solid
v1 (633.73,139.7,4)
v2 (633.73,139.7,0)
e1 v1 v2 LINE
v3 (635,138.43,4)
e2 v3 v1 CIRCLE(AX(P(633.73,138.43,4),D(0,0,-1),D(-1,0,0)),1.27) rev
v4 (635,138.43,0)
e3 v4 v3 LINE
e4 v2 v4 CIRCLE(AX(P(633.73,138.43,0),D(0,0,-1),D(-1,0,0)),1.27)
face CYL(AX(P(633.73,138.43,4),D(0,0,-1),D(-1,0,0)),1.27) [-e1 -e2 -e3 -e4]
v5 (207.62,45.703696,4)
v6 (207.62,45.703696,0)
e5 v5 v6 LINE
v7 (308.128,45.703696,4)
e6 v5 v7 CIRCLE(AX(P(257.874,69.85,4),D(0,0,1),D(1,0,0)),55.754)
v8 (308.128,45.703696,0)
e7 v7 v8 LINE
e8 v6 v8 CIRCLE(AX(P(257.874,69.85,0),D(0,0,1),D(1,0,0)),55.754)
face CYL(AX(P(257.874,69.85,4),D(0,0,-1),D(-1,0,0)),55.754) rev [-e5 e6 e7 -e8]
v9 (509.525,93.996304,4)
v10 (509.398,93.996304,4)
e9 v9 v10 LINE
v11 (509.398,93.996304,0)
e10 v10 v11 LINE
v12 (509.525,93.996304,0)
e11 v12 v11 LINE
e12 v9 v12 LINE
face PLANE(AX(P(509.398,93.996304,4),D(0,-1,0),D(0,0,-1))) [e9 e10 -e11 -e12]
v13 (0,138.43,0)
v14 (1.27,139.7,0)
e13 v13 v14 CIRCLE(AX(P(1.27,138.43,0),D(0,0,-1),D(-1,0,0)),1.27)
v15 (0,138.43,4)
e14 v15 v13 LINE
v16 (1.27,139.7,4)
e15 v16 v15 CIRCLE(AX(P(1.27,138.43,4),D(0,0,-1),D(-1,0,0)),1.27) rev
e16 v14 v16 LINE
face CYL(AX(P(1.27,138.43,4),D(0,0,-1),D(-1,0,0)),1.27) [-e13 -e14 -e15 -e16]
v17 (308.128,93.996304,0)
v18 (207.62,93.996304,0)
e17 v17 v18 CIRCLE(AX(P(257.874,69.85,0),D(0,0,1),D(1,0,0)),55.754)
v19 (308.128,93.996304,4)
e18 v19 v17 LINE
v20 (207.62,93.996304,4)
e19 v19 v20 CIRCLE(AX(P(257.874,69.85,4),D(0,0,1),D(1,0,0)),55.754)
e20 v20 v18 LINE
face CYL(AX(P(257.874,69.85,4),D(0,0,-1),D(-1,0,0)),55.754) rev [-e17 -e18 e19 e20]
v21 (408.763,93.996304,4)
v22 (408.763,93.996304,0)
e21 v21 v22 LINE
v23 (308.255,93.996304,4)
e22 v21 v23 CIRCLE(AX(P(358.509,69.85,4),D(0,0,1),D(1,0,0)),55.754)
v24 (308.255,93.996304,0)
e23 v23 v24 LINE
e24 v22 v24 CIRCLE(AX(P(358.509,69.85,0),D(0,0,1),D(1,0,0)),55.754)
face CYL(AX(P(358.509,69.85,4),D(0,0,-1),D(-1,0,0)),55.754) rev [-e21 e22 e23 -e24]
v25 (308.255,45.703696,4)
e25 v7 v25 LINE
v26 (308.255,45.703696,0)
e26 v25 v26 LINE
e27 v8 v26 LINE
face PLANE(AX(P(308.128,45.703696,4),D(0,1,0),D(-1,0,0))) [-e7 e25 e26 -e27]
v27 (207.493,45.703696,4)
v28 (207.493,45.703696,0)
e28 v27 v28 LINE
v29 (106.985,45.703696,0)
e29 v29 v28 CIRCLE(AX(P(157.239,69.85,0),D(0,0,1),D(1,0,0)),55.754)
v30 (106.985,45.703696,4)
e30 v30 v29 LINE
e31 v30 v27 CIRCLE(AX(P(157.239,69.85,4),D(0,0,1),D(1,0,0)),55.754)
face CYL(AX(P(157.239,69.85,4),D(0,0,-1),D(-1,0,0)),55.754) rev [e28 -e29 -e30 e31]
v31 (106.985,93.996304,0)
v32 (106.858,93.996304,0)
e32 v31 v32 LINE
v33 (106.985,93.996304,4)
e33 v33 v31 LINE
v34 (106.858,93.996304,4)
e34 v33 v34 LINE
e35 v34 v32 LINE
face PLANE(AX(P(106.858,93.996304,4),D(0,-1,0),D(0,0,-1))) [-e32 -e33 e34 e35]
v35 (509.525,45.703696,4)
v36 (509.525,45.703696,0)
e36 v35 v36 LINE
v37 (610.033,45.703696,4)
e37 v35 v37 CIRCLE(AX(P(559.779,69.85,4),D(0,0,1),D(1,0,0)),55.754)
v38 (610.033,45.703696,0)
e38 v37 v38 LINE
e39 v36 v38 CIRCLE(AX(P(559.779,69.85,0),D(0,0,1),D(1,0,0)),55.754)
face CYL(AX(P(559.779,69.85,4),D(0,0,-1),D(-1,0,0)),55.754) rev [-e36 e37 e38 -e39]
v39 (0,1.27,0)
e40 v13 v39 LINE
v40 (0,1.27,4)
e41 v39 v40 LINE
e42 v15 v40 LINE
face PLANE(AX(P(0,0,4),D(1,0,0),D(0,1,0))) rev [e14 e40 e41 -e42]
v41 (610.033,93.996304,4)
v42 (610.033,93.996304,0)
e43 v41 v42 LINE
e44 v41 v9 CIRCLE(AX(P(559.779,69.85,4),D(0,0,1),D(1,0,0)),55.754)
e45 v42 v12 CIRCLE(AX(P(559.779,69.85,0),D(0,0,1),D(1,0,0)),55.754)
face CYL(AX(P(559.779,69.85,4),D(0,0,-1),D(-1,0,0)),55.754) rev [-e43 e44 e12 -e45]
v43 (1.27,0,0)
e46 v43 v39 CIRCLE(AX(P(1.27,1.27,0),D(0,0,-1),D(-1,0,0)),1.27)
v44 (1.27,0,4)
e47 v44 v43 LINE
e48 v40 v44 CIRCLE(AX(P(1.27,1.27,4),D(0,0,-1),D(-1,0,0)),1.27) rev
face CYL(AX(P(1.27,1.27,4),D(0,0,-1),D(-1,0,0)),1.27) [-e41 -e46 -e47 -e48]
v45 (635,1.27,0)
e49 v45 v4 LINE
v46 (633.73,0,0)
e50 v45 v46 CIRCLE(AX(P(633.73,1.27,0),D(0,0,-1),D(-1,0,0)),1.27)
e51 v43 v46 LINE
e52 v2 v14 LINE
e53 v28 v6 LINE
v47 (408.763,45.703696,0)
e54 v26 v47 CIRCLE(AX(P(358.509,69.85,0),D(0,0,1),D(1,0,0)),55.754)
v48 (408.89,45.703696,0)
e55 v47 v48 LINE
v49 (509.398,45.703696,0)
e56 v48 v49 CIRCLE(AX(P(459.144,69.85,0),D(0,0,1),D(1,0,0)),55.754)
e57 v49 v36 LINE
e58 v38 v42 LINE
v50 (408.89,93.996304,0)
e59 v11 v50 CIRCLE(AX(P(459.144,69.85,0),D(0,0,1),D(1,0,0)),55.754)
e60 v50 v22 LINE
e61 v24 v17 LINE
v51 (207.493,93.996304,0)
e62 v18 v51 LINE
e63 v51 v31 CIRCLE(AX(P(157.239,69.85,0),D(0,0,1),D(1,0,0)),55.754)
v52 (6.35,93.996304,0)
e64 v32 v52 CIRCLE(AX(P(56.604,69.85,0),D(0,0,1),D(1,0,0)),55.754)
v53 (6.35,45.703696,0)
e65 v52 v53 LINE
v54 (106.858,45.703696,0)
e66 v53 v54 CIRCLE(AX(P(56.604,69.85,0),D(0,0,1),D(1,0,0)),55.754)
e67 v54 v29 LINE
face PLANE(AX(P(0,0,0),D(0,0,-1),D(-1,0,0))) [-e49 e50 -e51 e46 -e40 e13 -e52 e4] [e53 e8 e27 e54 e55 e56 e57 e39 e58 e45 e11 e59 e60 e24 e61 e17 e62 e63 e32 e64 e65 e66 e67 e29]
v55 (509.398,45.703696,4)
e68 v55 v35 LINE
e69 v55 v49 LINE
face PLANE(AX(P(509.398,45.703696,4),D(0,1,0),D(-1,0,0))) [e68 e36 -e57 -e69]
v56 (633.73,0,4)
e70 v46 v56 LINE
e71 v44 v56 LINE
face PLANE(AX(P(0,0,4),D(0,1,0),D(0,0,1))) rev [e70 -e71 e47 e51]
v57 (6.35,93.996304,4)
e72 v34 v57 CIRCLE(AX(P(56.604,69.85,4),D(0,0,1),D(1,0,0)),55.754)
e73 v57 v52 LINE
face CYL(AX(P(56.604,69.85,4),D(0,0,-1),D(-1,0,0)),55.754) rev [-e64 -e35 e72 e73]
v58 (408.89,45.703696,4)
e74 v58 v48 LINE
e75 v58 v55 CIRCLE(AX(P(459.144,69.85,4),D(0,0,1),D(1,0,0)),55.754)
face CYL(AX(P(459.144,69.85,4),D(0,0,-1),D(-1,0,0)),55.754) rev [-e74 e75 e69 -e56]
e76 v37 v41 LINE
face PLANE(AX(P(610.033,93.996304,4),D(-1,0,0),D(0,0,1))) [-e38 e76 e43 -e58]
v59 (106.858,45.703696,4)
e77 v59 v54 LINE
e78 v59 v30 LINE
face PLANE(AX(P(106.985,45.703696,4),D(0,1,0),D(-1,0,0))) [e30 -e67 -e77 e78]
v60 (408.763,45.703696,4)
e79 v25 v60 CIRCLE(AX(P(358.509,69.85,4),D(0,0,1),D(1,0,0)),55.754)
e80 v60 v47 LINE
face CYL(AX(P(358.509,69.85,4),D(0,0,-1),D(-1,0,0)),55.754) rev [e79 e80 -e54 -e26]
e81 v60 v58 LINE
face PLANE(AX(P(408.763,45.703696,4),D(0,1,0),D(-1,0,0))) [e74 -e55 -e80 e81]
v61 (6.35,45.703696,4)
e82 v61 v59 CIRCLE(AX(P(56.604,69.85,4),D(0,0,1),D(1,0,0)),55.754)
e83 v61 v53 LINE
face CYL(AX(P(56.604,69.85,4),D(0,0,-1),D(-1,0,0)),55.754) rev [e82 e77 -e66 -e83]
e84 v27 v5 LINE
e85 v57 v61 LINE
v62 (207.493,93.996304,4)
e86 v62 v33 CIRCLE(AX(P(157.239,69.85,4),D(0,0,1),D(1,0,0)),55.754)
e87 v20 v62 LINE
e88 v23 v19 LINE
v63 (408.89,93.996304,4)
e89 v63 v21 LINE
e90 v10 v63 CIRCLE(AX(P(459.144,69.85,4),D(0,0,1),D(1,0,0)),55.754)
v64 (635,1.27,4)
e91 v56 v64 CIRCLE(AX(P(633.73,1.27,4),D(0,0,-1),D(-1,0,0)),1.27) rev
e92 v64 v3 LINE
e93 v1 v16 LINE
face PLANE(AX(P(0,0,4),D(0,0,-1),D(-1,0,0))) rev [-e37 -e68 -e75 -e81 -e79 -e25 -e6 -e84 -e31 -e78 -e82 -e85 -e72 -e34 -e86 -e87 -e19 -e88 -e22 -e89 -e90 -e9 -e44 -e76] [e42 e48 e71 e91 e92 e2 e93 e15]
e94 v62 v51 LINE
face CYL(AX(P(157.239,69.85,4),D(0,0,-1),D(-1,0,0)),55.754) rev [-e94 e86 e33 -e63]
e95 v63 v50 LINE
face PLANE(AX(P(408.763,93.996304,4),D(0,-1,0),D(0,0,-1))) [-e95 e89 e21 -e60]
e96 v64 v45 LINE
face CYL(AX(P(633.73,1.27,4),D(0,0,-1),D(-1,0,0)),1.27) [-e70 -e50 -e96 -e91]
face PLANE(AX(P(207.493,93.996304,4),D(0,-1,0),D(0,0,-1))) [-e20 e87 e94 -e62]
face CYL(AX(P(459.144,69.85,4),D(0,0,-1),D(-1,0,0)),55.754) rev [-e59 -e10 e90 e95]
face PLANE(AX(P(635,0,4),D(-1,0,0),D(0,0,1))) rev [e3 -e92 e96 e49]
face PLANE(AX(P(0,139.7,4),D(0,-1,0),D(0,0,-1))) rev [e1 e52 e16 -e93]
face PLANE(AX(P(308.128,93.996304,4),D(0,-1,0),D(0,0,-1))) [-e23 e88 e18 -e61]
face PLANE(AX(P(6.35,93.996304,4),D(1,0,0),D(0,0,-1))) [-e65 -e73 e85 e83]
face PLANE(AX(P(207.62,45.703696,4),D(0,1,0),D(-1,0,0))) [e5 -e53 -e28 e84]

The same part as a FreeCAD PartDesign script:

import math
import FreeCAD as App
import Part
import Sketcher
Q = App.Units.Quantity


def edges_at(feature, points):
    """Names of the edges that pass closest to the given points."""
    edges = feature.Shape.Edges
    near = lambda p: min(range(len(edges)), key=lambda i: edges[i].distToShape(Part.Vertex(*p))[0])
    return sorted({f"Edge{near(p) + 1}" for p in points})


def add_polygon(sketch, points):
    """Adds a closed chain of lines whose ends are joined by coincident constraints."""
    first, n = sketch.GeometryCount, len(points)
    for a, b in zip(points, points[1:] + points[:1]):
        sketch.addGeometry(Part.LineSegment(App.Vector(*a, 0), App.Vector(*b, 0)), False)
    for i in range(n):
        sketch.addConstraint(Sketcher.Constraint("Coincident", first + i, 2, first + (i + 1) % n, 1))

doc = App.newDocument("Part")
body = doc.addObject("PartDesign::Body", "Body")

# Sketch on XY plane
sketch1 = body.newObject("Sketcher::SketchObject", "Sketch")
sketch1.AttachmentSupport = (doc.getObject("XY_Plane"), [""])
sketch1.MapMode = "FlatFace"
add_polygon(sketch1, [(0, 139.7), (0, 0), (635, 0), (635, 139.7)])  # lines 0-3
sketch1.addGeometry(Part.LineSegment(App.Vector(6.35, 45.703696, 0), App.Vector(6.35, 93.996304, 0)), False)  # 4
sketch1.addGeometry(Part.ArcOfCircle(Part.Circle(App.Vector(56.604, 69.85, 0), App.Vector(0, 0, 1), 55.754), math.radians(25.663597), math.radians(154.336403)), False)  # 5
sketch1.addGeometry(Part.LineSegment(App.Vector(106.858, 93.996304, 0), App.Vector(106.985, 93.996304, 0)), False)  # 6
sketch1.addGeometry(Part.ArcOfCircle(Part.Circle(App.Vector(157.239, 69.85, 0), App.Vector(0, 0, 1), 55.754), math.radians(25.663597), math.radians(154.336403)), False)  # 7
sketch1.addGeometry(Part.LineSegment(App.Vector(207.493, 93.996304, 0), App.Vector(207.62, 93.996304, 0)), False)  # 8
sketch1.addGeometry(Part.ArcOfCircle(Part.Circle(App.Vector(257.874, 69.85, 0), App.Vector(0, 0, 1), 55.754), math.radians(25.663597), math.radians(154.336403)), False)  # 9
sketch1.addGeometry(Part.LineSegment(App.Vector(308.128, 93.996304, 0), App.Vector(308.255, 93.996304, 0)), False)  # 10
sketch1.addGeometry(Part.ArcOfCircle(Part.Circle(App.Vector(358.509, 69.85, 0), App.Vector(0, 0, 1), 55.754), math.radians(25.663597), math.radians(154.336403)), False)  # 11
sketch1.addGeometry(Part.LineSegment(App.Vector(408.763, 93.996304, 0), App.Vector(408.89, 93.996304, 0)), False)  # 12
sketch1.addGeometry(Part.ArcOfCircle(Part.Circle(App.Vector(459.144, 69.85, 0), App.Vector(0, 0, 1), 55.754), math.radians(25.663597), math.radians(154.336403)), False)  # 13
sketch1.addGeometry(Part.LineSegment(App.Vector(509.398, 93.996304, 0), App.Vector(509.525, 93.996304, 0)), False)  # 14
sketch1.addGeometry(Part.ArcOfCircle(Part.Circle(App.Vector(559.779, 69.85, 0), App.Vector(0, 0, 1), 55.754), math.radians(25.663597), math.radians(154.336403)), False)  # 15
sketch1.addGeometry(Part.LineSegment(App.Vector(610.033, 93.996304, 0), App.Vector(610.033, 45.703696, 0)), False)  # 16
sketch1.addGeometry(Part.ArcOfCircle(Part.Circle(App.Vector(559.779, 69.85, 0), App.Vector(0, 0, 1), 55.754), math.radians(-154.336403), math.radians(-25.663597)), False)  # 17
sketch1.addGeometry(Part.LineSegment(App.Vector(509.525, 45.703696, 0), App.Vector(509.398, 45.703696, 0)), False)  # 18
sketch1.addGeometry(Part.ArcOfCircle(Part.Circle(App.Vector(459.144, 69.85, 0), App.Vector(0, 0, 1), 55.754), math.radians(-154.336403), math.radians(-25.663597)), False)  # 19
sketch1.addGeometry(Part.LineSegment(App.Vector(408.89, 45.703696, 0), App.Vector(408.763, 45.703696, 0)), False)  # 20
sketch1.addGeometry(Part.ArcOfCircle(Part.Circle(App.Vector(358.509, 69.85, 0), App.Vector(0, 0, 1), 55.754), math.radians(-154.336403), math.radians(-25.663597)), False)  # 21
sketch1.addGeometry(Part.LineSegment(App.Vector(308.255, 45.703696, 0), App.Vector(308.128, 45.703696, 0)), False)  # 22
sketch1.addGeometry(Part.ArcOfCircle(Part.Circle(App.Vector(257.874, 69.85, 0), App.Vector(0, 0, 1), 55.754), math.radians(-154.336403), math.radians(-25.663597)), False)  # 23
sketch1.addGeometry(Part.LineSegment(App.Vector(207.62, 45.703696, 0), App.Vector(207.493, 45.703696, 0)), False)  # 24
sketch1.addGeometry(Part.ArcOfCircle(Part.Circle(App.Vector(157.239, 69.85, 0), App.Vector(0, 0, 1), 55.754), math.radians(-154.336403), math.radians(-25.663597)), False)  # 25
sketch1.addGeometry(Part.LineSegment(App.Vector(106.985, 45.703696, 0), App.Vector(106.858, 45.703696, 0)), False)  # 26
sketch1.addGeometry(Part.ArcOfCircle(Part.Circle(App.Vector(56.604, 69.85, 0), App.Vector(0, 0, 1), 55.754), math.radians(-154.336403), math.radians(-25.663597)), False)  # 27
sketch1.addConstraint(Sketcher.Constraint("Coincident", 4, 2, 5, 2))
sketch1.addConstraint(Sketcher.Constraint("Coincident", 5, 1, 6, 1))
sketch1.addConstraint(Sketcher.Constraint("Coincident", 6, 2, 7, 2))
sketch1.addConstraint(Sketcher.Constraint("Coincident", 7, 1, 8, 1))
sketch1.addConstraint(Sketcher.Constraint("Coincident", 8, 2, 9, 2))
sketch1.addConstraint(Sketcher.Constraint("Coincident", 9, 1, 10, 1))
sketch1.addConstraint(Sketcher.Constraint("Coincident", 10, 2, 11, 2))
sketch1.addConstraint(Sketcher.Constraint("Coincident", 11, 1, 12, 1))
sketch1.addConstraint(Sketcher.Constraint("Coincident", 12, 2, 13, 2))
sketch1.addConstraint(Sketcher.Constraint("Coincident", 13, 1, 14, 1))
sketch1.addConstraint(Sketcher.Constraint("Coincident", 14, 2, 15, 2))
sketch1.addConstraint(Sketcher.Constraint("Coincident", 15, 1, 16, 1))
sketch1.addConstraint(Sketcher.Constraint("Coincident", 16, 2, 17, 2))
sketch1.addConstraint(Sketcher.Constraint("Coincident", 17, 1, 18, 1))
sketch1.addConstraint(Sketcher.Constraint("Coincident", 18, 2, 19, 2))
sketch1.addConstraint(Sketcher.Constraint("Coincident", 19, 1, 20, 1))
sketch1.addConstraint(Sketcher.Constraint("Coincident", 20, 2, 21, 2))
sketch1.addConstraint(Sketcher.Constraint("Coincident", 21, 1, 22, 1))
sketch1.addConstraint(Sketcher.Constraint("Coincident", 22, 2, 23, 2))
sketch1.addConstraint(Sketcher.Constraint("Coincident", 23, 1, 24, 1))
sketch1.addConstraint(Sketcher.Constraint("Coincident", 24, 2, 25, 2))
sketch1.addConstraint(Sketcher.Constraint("Coincident", 25, 1, 26, 1))
sketch1.addConstraint(Sketcher.Constraint("Coincident", 26, 2, 27, 2))
sketch1.addConstraint(Sketcher.Constraint("Coincident", 27, 1, 4, 1))
sketch1.addConstraint(Sketcher.Constraint("Vertical", 0))
sketch1.addConstraint(Sketcher.Constraint("Horizontal", 1))
sketch1.addConstraint(Sketcher.Constraint("Vertical", 2))
sketch1.addConstraint(Sketcher.Constraint("Horizontal", 3))
sketch1.addConstraint(Sketcher.Constraint("Vertical", 4))
sketch1.addConstraint(Sketcher.Constraint("Horizontal", 6))
sketch1.addConstraint(Sketcher.Constraint("Horizontal", 8))
sketch1.addConstraint(Sketcher.Constraint("Horizontal", 10))
sketch1.addConstraint(Sketcher.Constraint("Horizontal", 12))
sketch1.addConstraint(Sketcher.Constraint("Horizontal", 14))
sketch1.addConstraint(Sketcher.Constraint("Vertical", 16))
sketch1.addConstraint(Sketcher.Constraint("Horizontal", 18))
sketch1.addConstraint(Sketcher.Constraint("Horizontal", 20))
sketch1.addConstraint(Sketcher.Constraint("Horizontal", 22))
sketch1.addConstraint(Sketcher.Constraint("Horizontal", 24))
sketch1.addConstraint(Sketcher.Constraint("Horizontal", 26))
sketch1.addConstraint(Sketcher.Constraint("Coincident", 0, 2, -1, 1))
sketch1.addConstraint(Sketcher.Constraint("Coincident", 17, 3, 15, 3))
sketch1.addConstraint(Sketcher.Constraint("Coincident", 19, 3, 13, 3))
sketch1.addConstraint(Sketcher.Constraint("Coincident", 21, 3, 11, 3))
sketch1.addConstraint(Sketcher.Constraint("Coincident", 23, 3, 9, 3))
sketch1.addConstraint(Sketcher.Constraint("Coincident", 25, 3, 7, 3))
sketch1.addConstraint(Sketcher.Constraint("Coincident", 27, 3, 5, 3))
sketch1.addConstraint(Sketcher.Constraint("Equal", 5, 7))
sketch1.addConstraint(Sketcher.Constraint("Equal", 7, 9))
sketch1.addConstraint(Sketcher.Constraint("Equal", 9, 11))
sketch1.addConstraint(Sketcher.Constraint("Equal", 11, 13))
sketch1.addConstraint(Sketcher.Constraint("Equal", 13, 15))
sketch1.addConstraint(Sketcher.Constraint("Equal", 15, 17))
sketch1.addConstraint(Sketcher.Constraint("Equal", 17, 19))
sketch1.addConstraint(Sketcher.Constraint("Equal", 19, 21))
sketch1.addConstraint(Sketcher.Constraint("Equal", 21, 23))
sketch1.addConstraint(Sketcher.Constraint("Equal", 23, 25))
sketch1.addConstraint(Sketcher.Constraint("Equal", 25, 27))
sketch1.addConstraint(Sketcher.Constraint("Horizontal", 5, 3, 7, 3))
sketch1.addConstraint(Sketcher.Constraint("Horizontal", 7, 3, 9, 3))
sketch1.addConstraint(Sketcher.Constraint("Horizontal", 9, 3, 11, 3))
sketch1.addConstraint(Sketcher.Constraint("Horizontal", 11, 3, 13, 3))
sketch1.addConstraint(Sketcher.Constraint("Horizontal", 13, 3, 15, 3))
sketch1.addConstraint(Sketcher.Constraint("Horizontal", 4, 2, 5, 1))
sketch1.addConstraint(Sketcher.Constraint("Horizontal", 6, 2, 7, 1))
sketch1.addConstraint(Sketcher.Constraint("Horizontal", 8, 2, 9, 1))
sketch1.addConstraint(Sketcher.Constraint("Horizontal", 10, 2, 11, 1))
sketch1.addConstraint(Sketcher.Constraint("Horizontal", 12, 2, 13, 1))
sketch1.addConstraint(Sketcher.Constraint("Horizontal", 14, 2, 15, 1))
sketch1.addConstraint(Sketcher.Constraint("Horizontal", 16, 2, 17, 1))
sketch1.addConstraint(Sketcher.Constraint("Horizontal", 18, 2, 19, 1))
sketch1.addConstraint(Sketcher.Constraint("Horizontal", 20, 2, 21, 1))
sketch1.addConstraint(Sketcher.Constraint("Horizontal", 22, 2, 23, 1))
sketch1.addConstraint(Sketcher.Constraint("Horizontal", 24, 2, 25, 1))
sketch1.addConstraint(Sketcher.Constraint("Equal", 6, 8))
sketch1.addConstraint(Sketcher.Constraint("Equal", 8, 10))
sketch1.addConstraint(Sketcher.Constraint("Equal", 10, 12))
sketch1.addConstraint(Sketcher.Constraint("Equal", 12, 14))
sketch1.addConstraint(Sketcher.Constraint("DistanceX", 1, 1, 1, 2, Q("25 in")))
sketch1.addConstraint(Sketcher.Constraint("DistanceY", 0, 2, 0, 1, Q("5.5 in")))
sketch1.addConstraint(Sketcher.Constraint("DistanceX", 6, 1, 6, 2, Q("0.005 in")))
sketch1.addConstraint(Sketcher.Constraint("DistanceY", -1, 1, 5, 3, Q("2.75 in")))
sketch1.addConstraint(Sketcher.Constraint("DistanceX", -1, 1, 4, 2, Q("0.25 in")))
sketch1.addConstraint(Sketcher.Constraint("Radius", 5, Q("55.754 mm")))
sketch1.addConstraint(Sketcher.Constraint("DistanceY", 4, 1, 4, 2, Q("48.292608 mm")))
pad1 = body.newObject("PartDesign::Pad", "Pad")
pad1.Profile = sketch1
pad1.Length = 4
doc.recompute()

fillet = body.newObject("PartDesign::Fillet", "Fillet")
fillet.Base = (pad1, edges_at(pad1, [
    (635, 0, 2),
    (0, 0, 2),
    (0, 139.7, 2),
    (635, 139.7, 2),
]))
fillet.Radius = Q("0.05 in")

doc.recompute()
